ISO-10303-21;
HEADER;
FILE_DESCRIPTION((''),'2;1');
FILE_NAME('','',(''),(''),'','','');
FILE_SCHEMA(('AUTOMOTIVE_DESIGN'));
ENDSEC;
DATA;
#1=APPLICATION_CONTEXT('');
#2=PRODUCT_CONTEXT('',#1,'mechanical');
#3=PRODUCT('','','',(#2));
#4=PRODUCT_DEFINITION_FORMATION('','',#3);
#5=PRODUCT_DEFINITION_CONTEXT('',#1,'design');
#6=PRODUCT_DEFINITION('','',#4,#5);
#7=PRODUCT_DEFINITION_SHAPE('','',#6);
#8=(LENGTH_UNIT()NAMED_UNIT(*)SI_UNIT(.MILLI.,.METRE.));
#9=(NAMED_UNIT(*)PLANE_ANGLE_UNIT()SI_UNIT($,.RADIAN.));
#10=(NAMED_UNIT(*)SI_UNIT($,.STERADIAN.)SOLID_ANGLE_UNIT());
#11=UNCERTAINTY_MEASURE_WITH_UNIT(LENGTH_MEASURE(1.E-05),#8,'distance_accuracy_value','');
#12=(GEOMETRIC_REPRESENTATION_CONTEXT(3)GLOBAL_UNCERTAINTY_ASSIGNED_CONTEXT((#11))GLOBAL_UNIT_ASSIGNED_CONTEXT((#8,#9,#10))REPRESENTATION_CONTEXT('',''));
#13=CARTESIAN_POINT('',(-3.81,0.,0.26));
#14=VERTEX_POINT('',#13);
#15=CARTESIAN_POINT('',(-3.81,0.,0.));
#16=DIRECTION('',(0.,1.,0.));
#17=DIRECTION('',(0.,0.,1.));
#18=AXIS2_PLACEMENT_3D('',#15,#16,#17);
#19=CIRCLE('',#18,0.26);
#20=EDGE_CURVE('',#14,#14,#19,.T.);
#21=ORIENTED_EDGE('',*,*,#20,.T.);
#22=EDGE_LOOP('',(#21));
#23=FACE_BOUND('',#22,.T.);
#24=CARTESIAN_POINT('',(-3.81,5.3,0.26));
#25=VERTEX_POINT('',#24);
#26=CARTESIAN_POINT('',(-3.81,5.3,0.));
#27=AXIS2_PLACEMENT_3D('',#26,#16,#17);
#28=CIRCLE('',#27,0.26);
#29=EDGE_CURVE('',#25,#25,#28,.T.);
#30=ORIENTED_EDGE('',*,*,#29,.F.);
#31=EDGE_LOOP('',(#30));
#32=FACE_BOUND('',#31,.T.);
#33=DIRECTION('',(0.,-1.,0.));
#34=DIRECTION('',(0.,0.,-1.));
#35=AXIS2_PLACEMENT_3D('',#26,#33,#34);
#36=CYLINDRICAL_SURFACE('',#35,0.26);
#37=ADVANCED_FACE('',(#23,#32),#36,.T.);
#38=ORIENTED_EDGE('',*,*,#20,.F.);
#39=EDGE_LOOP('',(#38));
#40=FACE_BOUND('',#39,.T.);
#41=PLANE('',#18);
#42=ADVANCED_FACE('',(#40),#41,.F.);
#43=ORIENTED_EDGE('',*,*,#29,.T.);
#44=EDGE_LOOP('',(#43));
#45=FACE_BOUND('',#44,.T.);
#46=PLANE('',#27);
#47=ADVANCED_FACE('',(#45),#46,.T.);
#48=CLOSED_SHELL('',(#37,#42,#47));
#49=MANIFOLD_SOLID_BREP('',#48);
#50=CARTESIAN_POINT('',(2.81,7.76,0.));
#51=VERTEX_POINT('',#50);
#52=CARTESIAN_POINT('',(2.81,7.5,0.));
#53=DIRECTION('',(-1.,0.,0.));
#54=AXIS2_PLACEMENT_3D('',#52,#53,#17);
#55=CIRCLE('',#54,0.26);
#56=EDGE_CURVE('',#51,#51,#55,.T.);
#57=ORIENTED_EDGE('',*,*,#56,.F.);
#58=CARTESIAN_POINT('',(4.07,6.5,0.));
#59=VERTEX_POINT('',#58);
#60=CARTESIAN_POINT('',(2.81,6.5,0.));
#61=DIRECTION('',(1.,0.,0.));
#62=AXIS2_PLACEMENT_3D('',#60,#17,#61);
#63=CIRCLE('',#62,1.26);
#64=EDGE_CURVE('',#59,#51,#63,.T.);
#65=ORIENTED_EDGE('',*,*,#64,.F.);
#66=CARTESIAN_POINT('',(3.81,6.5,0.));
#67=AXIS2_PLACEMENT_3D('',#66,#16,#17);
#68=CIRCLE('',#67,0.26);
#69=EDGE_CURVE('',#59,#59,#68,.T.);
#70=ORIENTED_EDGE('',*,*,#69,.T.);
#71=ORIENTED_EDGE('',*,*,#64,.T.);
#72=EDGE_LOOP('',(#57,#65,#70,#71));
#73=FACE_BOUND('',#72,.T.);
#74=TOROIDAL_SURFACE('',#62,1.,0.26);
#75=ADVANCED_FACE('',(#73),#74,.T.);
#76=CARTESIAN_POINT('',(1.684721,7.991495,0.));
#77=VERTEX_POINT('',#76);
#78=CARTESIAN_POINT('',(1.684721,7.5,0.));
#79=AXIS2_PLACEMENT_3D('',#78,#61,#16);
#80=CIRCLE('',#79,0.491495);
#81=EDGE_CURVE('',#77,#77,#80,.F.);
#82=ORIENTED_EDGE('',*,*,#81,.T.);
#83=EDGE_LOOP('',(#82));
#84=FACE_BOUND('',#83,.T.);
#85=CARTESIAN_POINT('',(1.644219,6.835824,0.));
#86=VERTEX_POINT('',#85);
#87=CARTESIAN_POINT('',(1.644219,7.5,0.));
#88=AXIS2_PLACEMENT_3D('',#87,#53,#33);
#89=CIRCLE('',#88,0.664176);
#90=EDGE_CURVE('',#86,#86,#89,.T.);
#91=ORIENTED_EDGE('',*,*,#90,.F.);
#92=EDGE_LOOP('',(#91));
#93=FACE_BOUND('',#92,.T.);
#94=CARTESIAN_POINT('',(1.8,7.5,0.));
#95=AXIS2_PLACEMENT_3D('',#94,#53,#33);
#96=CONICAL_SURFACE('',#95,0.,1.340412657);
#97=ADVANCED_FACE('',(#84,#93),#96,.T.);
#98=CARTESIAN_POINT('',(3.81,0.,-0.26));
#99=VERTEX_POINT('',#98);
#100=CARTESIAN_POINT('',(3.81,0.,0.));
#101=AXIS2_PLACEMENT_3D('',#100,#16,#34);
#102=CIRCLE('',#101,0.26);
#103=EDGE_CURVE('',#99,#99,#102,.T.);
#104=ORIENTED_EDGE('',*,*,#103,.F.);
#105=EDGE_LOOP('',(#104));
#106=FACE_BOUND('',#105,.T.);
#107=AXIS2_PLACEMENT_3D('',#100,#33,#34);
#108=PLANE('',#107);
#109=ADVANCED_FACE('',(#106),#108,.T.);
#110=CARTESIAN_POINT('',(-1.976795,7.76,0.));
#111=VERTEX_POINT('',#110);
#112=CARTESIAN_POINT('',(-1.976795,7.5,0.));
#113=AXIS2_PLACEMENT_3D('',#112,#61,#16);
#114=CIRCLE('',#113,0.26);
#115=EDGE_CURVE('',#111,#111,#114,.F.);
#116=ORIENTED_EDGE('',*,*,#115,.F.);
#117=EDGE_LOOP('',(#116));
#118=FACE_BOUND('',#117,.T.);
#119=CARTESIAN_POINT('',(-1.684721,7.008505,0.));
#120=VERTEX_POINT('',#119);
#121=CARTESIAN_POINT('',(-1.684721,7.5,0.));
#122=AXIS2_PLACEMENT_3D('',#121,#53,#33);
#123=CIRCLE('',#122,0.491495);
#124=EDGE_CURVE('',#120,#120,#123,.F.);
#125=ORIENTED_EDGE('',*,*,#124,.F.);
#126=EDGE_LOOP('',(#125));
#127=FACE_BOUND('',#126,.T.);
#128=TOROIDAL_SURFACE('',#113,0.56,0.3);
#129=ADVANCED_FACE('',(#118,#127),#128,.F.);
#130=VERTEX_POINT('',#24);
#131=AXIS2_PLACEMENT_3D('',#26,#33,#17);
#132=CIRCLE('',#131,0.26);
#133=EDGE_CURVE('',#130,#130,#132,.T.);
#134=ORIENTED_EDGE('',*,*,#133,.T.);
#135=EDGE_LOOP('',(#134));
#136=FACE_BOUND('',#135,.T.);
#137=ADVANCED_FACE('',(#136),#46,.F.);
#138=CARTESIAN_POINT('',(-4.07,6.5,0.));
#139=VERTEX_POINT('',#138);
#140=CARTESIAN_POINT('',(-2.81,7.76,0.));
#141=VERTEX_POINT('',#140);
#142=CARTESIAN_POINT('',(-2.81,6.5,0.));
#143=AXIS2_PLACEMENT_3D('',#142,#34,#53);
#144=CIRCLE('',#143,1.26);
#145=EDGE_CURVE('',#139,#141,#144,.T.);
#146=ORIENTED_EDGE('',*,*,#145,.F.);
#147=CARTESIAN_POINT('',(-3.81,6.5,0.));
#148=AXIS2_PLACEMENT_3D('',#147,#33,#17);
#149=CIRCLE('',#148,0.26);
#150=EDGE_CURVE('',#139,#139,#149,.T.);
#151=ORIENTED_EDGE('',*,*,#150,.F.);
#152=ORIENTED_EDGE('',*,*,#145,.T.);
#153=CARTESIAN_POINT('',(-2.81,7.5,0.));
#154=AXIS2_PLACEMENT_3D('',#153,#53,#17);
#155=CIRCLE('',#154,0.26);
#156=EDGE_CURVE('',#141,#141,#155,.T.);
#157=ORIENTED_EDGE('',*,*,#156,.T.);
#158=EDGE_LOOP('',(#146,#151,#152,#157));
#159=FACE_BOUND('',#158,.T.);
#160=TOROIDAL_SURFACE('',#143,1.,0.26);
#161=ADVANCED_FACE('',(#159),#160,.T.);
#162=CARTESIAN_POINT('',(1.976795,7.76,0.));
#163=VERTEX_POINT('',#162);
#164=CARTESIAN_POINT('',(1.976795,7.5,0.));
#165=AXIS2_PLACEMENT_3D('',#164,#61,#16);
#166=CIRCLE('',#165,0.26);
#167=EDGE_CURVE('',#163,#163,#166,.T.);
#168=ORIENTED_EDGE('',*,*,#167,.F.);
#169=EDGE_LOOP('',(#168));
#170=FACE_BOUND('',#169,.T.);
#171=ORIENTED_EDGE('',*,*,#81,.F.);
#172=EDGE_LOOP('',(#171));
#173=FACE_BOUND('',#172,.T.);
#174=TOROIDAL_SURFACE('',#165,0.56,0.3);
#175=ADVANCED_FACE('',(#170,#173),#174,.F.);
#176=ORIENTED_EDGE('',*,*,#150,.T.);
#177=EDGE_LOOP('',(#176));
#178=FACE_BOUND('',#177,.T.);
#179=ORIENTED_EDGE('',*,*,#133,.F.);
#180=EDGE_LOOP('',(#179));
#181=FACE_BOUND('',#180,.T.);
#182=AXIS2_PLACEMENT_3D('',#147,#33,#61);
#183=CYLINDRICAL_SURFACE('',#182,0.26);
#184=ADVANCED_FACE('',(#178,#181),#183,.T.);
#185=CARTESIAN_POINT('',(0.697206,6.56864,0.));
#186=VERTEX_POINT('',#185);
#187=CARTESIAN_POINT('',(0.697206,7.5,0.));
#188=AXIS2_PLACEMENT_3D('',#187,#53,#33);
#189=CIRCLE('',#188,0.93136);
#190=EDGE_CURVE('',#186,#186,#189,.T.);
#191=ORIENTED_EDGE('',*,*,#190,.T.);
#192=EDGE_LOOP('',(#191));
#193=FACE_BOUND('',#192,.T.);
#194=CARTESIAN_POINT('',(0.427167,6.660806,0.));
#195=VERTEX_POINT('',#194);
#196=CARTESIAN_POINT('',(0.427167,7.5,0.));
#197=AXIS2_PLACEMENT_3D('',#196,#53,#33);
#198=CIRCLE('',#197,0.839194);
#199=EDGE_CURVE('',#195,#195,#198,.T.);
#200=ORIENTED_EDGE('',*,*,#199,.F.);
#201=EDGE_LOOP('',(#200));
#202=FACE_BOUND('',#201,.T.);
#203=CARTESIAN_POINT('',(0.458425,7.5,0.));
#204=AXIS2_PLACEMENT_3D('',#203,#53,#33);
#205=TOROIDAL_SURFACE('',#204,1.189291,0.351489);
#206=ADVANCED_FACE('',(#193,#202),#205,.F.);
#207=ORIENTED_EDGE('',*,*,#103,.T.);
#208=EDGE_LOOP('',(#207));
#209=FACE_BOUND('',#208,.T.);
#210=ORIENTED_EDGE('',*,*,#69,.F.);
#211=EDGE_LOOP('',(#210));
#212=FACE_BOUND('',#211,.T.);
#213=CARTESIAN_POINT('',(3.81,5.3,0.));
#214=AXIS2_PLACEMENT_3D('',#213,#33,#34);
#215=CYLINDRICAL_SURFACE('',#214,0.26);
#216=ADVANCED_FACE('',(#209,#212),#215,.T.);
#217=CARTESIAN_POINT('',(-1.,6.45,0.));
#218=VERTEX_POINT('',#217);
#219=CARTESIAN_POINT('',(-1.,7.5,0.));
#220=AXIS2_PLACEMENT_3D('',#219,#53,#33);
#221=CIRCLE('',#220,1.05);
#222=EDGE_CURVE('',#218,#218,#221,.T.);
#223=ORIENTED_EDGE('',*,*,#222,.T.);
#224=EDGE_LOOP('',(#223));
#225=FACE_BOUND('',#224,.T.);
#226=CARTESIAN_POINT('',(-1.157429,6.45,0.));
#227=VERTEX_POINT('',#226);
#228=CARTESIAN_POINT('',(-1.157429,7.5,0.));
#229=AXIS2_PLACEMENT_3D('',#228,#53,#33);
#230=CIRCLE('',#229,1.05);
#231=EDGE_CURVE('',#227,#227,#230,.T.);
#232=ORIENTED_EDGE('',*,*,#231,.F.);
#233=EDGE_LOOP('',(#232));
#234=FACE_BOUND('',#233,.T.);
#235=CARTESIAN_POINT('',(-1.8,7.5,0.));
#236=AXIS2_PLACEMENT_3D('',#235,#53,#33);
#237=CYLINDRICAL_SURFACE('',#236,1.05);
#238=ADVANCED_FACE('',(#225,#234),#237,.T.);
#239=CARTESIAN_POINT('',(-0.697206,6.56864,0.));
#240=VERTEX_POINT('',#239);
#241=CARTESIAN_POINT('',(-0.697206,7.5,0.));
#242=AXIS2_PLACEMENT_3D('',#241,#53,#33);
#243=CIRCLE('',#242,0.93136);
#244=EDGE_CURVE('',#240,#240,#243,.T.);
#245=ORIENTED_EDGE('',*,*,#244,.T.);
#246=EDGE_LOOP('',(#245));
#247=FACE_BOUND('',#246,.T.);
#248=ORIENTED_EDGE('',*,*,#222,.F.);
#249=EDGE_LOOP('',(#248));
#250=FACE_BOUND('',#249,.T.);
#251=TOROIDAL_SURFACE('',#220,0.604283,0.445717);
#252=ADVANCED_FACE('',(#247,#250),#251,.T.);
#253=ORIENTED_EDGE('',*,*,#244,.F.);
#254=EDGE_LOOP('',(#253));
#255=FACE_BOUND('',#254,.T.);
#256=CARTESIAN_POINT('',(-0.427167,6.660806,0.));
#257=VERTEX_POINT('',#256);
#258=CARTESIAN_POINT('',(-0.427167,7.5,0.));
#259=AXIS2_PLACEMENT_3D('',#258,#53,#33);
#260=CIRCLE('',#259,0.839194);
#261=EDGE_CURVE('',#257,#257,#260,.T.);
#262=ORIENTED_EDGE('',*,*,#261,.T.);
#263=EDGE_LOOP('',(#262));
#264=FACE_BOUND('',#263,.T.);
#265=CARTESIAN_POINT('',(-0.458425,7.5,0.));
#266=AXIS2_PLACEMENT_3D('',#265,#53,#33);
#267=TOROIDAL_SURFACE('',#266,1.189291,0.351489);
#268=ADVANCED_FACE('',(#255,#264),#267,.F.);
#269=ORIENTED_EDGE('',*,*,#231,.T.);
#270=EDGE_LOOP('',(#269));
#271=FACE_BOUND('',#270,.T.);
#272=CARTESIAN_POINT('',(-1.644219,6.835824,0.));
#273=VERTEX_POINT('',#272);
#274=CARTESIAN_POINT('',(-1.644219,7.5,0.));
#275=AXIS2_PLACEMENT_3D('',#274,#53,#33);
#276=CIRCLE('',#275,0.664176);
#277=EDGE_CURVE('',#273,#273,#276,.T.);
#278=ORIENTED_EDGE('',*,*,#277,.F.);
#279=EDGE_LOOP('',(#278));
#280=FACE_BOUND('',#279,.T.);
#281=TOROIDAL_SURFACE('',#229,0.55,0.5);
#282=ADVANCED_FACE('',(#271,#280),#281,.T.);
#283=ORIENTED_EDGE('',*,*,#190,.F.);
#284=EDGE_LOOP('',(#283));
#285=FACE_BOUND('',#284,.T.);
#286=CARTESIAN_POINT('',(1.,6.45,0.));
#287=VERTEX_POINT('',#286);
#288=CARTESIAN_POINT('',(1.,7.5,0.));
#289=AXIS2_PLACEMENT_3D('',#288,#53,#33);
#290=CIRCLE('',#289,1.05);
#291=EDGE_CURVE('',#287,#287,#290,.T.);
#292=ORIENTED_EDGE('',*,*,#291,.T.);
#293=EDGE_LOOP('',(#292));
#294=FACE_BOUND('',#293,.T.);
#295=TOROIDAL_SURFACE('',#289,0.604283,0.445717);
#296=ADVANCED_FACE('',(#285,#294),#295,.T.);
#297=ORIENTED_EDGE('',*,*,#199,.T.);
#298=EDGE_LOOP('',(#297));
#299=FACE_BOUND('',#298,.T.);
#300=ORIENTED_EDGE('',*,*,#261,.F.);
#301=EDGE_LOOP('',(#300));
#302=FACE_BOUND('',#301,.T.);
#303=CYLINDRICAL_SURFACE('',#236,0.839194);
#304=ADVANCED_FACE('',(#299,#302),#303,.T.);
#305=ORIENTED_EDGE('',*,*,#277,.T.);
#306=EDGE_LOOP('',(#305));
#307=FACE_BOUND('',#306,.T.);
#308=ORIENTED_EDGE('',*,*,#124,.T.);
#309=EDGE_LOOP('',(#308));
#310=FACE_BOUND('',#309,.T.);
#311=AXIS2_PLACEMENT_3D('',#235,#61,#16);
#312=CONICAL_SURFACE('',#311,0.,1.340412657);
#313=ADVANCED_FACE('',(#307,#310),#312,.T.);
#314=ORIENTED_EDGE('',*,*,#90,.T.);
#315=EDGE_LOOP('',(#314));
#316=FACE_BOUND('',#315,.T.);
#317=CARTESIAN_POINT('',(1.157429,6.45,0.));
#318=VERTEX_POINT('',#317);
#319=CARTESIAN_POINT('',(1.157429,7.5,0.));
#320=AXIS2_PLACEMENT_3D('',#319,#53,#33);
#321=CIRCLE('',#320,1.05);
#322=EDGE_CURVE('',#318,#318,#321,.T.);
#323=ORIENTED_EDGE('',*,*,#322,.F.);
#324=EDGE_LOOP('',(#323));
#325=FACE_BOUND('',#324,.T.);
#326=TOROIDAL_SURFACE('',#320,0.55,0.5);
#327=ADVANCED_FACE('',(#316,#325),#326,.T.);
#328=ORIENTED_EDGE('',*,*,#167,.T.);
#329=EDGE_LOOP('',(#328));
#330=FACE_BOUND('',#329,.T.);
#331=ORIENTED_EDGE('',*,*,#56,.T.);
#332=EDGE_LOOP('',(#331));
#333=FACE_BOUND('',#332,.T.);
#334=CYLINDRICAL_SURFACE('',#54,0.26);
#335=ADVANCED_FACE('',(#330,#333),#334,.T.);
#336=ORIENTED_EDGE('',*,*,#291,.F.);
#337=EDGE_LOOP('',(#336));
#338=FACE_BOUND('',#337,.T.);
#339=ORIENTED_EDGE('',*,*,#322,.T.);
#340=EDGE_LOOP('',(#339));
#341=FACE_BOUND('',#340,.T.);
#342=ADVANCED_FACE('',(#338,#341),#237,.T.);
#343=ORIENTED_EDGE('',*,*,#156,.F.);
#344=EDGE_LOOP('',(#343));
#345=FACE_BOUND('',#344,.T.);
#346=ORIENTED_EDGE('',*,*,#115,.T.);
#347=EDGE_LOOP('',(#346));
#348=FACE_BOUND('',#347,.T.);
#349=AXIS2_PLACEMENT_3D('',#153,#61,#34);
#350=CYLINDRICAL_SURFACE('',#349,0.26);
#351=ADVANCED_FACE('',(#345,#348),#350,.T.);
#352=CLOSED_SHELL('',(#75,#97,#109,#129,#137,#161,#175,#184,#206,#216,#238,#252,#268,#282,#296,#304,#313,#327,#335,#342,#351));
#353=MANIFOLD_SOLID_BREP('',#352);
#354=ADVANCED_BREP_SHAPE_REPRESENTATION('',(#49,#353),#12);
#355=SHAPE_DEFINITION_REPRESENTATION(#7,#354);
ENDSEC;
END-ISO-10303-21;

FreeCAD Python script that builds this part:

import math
import FreeCAD as App
import Part
import Sketcher
Q = App.Units.Quantity


def edges_at(feature, points):
    """Names of the edges that pass closest to the given points."""
    edges = feature.Shape.Edges
    near = lambda p: min(range(len(edges)), key=lambda i: edges[i].distToShape(Part.Vertex(*p))[0])
    return sorted({f"Edge{near(p) + 1}" for p in points})

doc = App.newDocument("Part")
params = doc.addObject("Spreadsheet::Sheet", "Params")
for row, (alias, value) in enumerate([
    ("sketch1_diameter", "0.52 mm"),
    ("pad1_length", "5.3 mm"),
    ("sketch2_diameter", "0.52 mm"),
    ("pad2_length", "5.3 mm"),
    ("sketch3_radius", "0.5 mm"),
    ("sketch3_width", "3.6 mm"),
    ("revolution_angle", "360 deg"),
    ("sketch4_diameter", "0.52 mm"),
    ("sketch5_radius", "1 mm"),
    ("sketch5_height", "1.2 mm"),
    ("fillet_radius", "0.3 mm"),
], start=1):
    params.set(f"A{row}", alias)
    params.set(f"B{row}", "=" + value)
    params.setAlias(f"B{row}", alias)

body = doc.addObject("PartDesign::Body", "Body")

# Sketch on XZ plane
sketch1 = doc.addObject("Sketcher::SketchObject", "Sketch")
body.addObject(sketch1)
sketch1.AttachmentSupport = (doc.XZ_Plane, [""])
sketch1.MapMode = "FlatFace"
sketch1.addGeometry(Part.Circle(App.Vector(-3.81, 0, 0), App.Vector(0, 0, 1), 0.26), False)
sketch1.addConstraint([
    Sketcher.Constraint("PointOnObject", 0, 3, -1),
    Sketcher.Constraint("Diameter", 0, 0.52),
    Sketcher.Constraint("DistanceX", 0, 3, -1, 1, 3.81),
])
sketch1.setExpression("Constraints[1]", "Params.sketch1_diameter")
pad1 = doc.addObject("PartDesign::Pad", "Pad")
body.addObject(pad1)
pad1.Profile = sketch1
pad1.setExpression("Length", "Params.pad1_length")
pad1.Reversed = True
body2 = doc.addObject("PartDesign::Body", "Body001")

# Sketch on XZ plane
sketch2 = doc.addObject("Sketcher::SketchObject", "Sketch001")
body2.addObject(sketch2)
sketch2.AttachmentSupport = (doc.getObject("XZ_Plane001"), [""])
sketch2.MapMode = "FlatFace"
sketch2.addGeometry(Part.Circle(App.Vector(3.81, 0, 0), App.Vector(0, 0, 1), 0.26), False)
sketch2.addConstraint([
    Sketcher.Constraint("PointOnObject", 0, 3, -1),
    Sketcher.Constraint("Diameter", 0, 0.52),
    Sketcher.Constraint("DistanceX", -1, 1, 0, 3, 3.81),
])
sketch2.setExpression("Constraints[1]", "Params.sketch2_diameter")
pad2 = doc.addObject("PartDesign::Pad", "Pad001")
body2.addObject(pad2)
pad2.Profile = sketch2
pad2.setExpression("Length", "Params.pad2_length")
pad2.Reversed = True
body3 = doc.addObject("PartDesign::Body", "Body002")

# Sketch on XY plane
sketch3 = doc.addObject("Sketcher::SketchObject", "Sketch002")
body3.addObject(sketch3)
sketch3.AttachmentSupport = (doc.getObject("XY_Plane002"), [""])
sketch3.MapMode = "FlatFace"
sketch3.addGeometry([
    Part.LineSegment(App.Vector(-1.644219, 8.164176, 0), App.Vector(-1.8, 7.5, 0)),  # 0
    Part.LineSegment(App.Vector(-1.8, 7.5, 0), App.Vector(1.8, 7.5, 0)),  # 1
    Part.LineSegment(App.Vector(1.8, 7.5, 0), App.Vector(1.644219, 8.164176, 0)),  # 2
    Part.ArcOfCircle(Part.Circle(App.Vector(1.157429, 8.05, 0), App.Vector(0, 0, 1), 0.5), math.radians(13.200012), math.radians(90)),  # 3
    Part.LineSegment(App.Vector(1.157429, 8.55, 0), App.Vector(1, 8.55, 0)),  # 4
    Part.ArcOfCircle(Part.Circle(App.Vector(1, 8.104283, 0), App.Vector(0, 0, 1), 0.445717), math.radians(90), math.radians(132.792186)),  # 5
    Part.ArcOfCircle(Part.Circle(App.Vector(0.458425, 8.689291, 0), App.Vector(0, 0, 1), 0.351489), math.radians(-95.102064), math.radians(-47.207814)),  # 6
    Part.LineSegment(App.Vector(0.427167, 8.339194, 0), App.Vector(-0.427167, 8.339194, 0)),  # 7
    Part.ArcOfCircle(Part.Circle(App.Vector(-0.458425, 8.689291, 0), App.Vector(0, 0, 1), 0.351489), math.radians(-132.792186), math.radians(-84.897936)),  # 8
    Part.ArcOfCircle(Part.Circle(App.Vector(-1, 8.104283, 0), App.Vector(0, 0, 1), 0.445717), math.radians(47.207814), math.radians(90)),  # 9
    Part.LineSegment(App.Vector(-1, 8.55, 0), App.Vector(-1.157429, 8.55, 0)),  # 10
    Part.ArcOfCircle(Part.Circle(App.Vector(-1.157429, 8.05, 0), App.Vector(0, 0, 1), 0.5), math.radians(90), math.radians(166.799988)),  # 11
], False)
sketch3.addGeometry(Part.LineSegment(App.Vector(-1.8, 7.5, 0), App.Vector(1.8, 7.5, 0)), True)  # axis
sketch3.addConstraint([
    Sketcher.Constraint("Coincident", 0, 2, 1, 1),
    Sketcher.Constraint("Coincident", 1, 2, 2, 1),
    Sketcher.Constraint("Tangent", 2, 2, 3, 1),
    Sketcher.Constraint("Tangent", 3, 2, 4, 1),
    Sketcher.Constraint("Tangent", 4, 2, 5, 1),
    Sketcher.Constraint("Tangent", 5, 2, 6, 2),
    Sketcher.Constraint("Coincident", 6, 1, 7, 1),
    Sketcher.Constraint("Coincident", 7, 2, 8, 2),
    Sketcher.Constraint("Tangent", 8, 1, 9, 1),
    Sketcher.Constraint("Tangent", 9, 2, 10, 1),
    Sketcher.Constraint("Tangent", 10, 2, 11, 1),
    Sketcher.Constraint("Tangent", 11, 2, 0, 1),
    Sketcher.Constraint("Horizontal", 1),
    Sketcher.Constraint("Horizontal", 4),
    Sketcher.Constraint("Horizontal", 7),
    Sketcher.Constraint("Horizontal", 10),
    Sketcher.Constraint("Horizontal", 12),
    Sketcher.Constraint("Coincident", 12, 1, 0, 2),
    Sketcher.Constraint("Equal", 6, 8),
    Sketcher.Constraint("Equal", 5, 9),
    Sketcher.Constraint("Equal", 3, 11),
    Sketcher.Constraint("Symmetric", 6, 3, 8, 3, -2),
    Sketcher.Constraint("Symmetric", 3, 3, 11, 3, -2),
    Sketcher.Constraint("Horizontal", 2, 2, 11, 2),
    Sketcher.Constraint("Equal", 1, 12),
    Sketcher.Constraint("Radius", 3, 0.5),
    Sketcher.Constraint("DistanceX", 1, 1, 1, 2, 3.6),
    Sketcher.Constraint("DistanceX", -1, 1, 5, 3, 1.0),
    Sketcher.Constraint("Angle", 0, Q("-103.200012 deg")),
    Sketcher.Constraint("DistanceY", -1, 1, 0, 2, 7.5),
    Sketcher.Constraint("DistanceY", -1, 1, 3, 3, 8.05),
    Sketcher.Constraint("Radius", 6, 0.351489),
    Sketcher.Constraint("Radius", 5, 0.445717),
    Sketcher.Constraint("DistanceX", 7, 2, 7, 1, 0.854335),
    Sketcher.Constraint("DistanceY", -1, 1, 6, 3, 8.689291),
])
sketch3.setExpression("Constraints[25]", "Params.sketch3_radius")
sketch3.setExpression("Constraints[26]", "Params.sketch3_width")
revolution = doc.addObject("PartDesign::Revolution", "Revolution")
body3.addObject(revolution)
revolution.Profile = sketch3
revolution.ReferenceAxis = (sketch3, ["Axis0"])
revolution.setExpression("Angle", "Params.revolution_angle")
body2.AllowCompound = True
doc.recompute()

boolean = doc.addObject("PartDesign::Boolean", "Boolean")
body2.addObject(boolean)
boolean.Type = "Fuse"
boolean.addObjects([body3])

# Sketch on XZ plane
sketch4 = doc.addObject("Sketcher::SketchObject", "Sketch003")
body2.addObject(sketch4)
sketch4.AttachmentSupport = (doc.getObject("XZ_Plane001"), [""])
sketch4.MapMode = "FlatFace"
sketch4.AttachmentOffset = App.Placement(App.Vector(0, 0, -5.3), App.Rotation())
sketch4.addGeometry(Part.Circle(App.Vector(3.81, 0, 0), App.Vector(0, 0, 1), 0.26), False)
sketch4.addConstraint([
    Sketcher.Constraint("PointOnObject", 0, 3, -1),
    Sketcher.Constraint("Diameter", 0, 0.52),
    Sketcher.Constraint("DistanceX", -1, 1, 0, 3, 3.81),
])
sketch4.setExpression("Constraints[1]", "Params.sketch4_diameter")

# Sketch on XY plane
sketch5 = doc.addObject("Sketcher::SketchObject", "Sketch004")
body2.addObject(sketch5)
sketch5.AttachmentSupport = (doc.getObject("XY_Plane001"), [""])
sketch5.MapMode = "FlatFace"
sketch5.addGeometry([
    Part.LineSegment(App.Vector(1.567967, 7.5, 0), App.Vector(2.81, 7.5, 0)),
    Part.ArcOfCircle(Part.Circle(App.Vector(2.81, 6.5, 0), App.Vector(0, 0, 1), 1), math.radians(0), math.radians(90)),
    Part.LineSegment(App.Vector(3.81, 6.5, 0), App.Vector(3.81, 5.3, 0)),
], False)
sketch5.addConstraint([
    Sketcher.Constraint("Tangent", 0, 2, 1, 2),
    Sketcher.Constraint("Tangent", 1, 1, 2, 1),
    Sketcher.Constraint("Horizontal", 0),
    Sketcher.Constraint("Vertical", 2),
    Sketcher.Constraint("Radius", 1, 1.0),
    Sketcher.Constraint("DistanceY", 2, 2, 2, 1, 1.2),
    Sketcher.Constraint("DistanceY", -1, 1, 1, 3, 6.5),
    Sketcher.Constraint("DistanceX", -1, 1, 1, 3, 2.81),
    Sketcher.Constraint("DistanceX", 0, 1, 0, 2, 1.242033),
])
sketch5.setExpression("Constraints[4]", "Params.sketch5_radius")
sketch5.setExpression("Constraints[5]", "Params.sketch5_height")
doc.recompute()

additivepipe = doc.addObject("PartDesign::AdditivePipe", "AdditivePipe")
body2.addObject(additivepipe)
additivepipe.Profile = sketch4
additivepipe.Spine = (sketch5, ["Edge1", "Edge2", "Edge3"])
doc.recompute()

mirrored = doc.addObject("PartDesign::Mirrored", "Mirrored")
body2.addObject(mirrored)
mirrored.Originals = [additivepipe]
mirrored.MirrorPlane = (doc.getObject("YZ_Plane001"), [""])
body2.Tip = mirrored
doc.recompute()

fillet = doc.addObject("PartDesign::Fillet", "Fillet")
body2.addObject(fillet)
fillet.Base = (mirrored, edges_at(mirrored, [(1.739, 7.5, -0.26), (-1.739, 7.5, -0.26)]))
fillet.setExpression("Radius", "Params.fillet_radius")

doc.recompute()
